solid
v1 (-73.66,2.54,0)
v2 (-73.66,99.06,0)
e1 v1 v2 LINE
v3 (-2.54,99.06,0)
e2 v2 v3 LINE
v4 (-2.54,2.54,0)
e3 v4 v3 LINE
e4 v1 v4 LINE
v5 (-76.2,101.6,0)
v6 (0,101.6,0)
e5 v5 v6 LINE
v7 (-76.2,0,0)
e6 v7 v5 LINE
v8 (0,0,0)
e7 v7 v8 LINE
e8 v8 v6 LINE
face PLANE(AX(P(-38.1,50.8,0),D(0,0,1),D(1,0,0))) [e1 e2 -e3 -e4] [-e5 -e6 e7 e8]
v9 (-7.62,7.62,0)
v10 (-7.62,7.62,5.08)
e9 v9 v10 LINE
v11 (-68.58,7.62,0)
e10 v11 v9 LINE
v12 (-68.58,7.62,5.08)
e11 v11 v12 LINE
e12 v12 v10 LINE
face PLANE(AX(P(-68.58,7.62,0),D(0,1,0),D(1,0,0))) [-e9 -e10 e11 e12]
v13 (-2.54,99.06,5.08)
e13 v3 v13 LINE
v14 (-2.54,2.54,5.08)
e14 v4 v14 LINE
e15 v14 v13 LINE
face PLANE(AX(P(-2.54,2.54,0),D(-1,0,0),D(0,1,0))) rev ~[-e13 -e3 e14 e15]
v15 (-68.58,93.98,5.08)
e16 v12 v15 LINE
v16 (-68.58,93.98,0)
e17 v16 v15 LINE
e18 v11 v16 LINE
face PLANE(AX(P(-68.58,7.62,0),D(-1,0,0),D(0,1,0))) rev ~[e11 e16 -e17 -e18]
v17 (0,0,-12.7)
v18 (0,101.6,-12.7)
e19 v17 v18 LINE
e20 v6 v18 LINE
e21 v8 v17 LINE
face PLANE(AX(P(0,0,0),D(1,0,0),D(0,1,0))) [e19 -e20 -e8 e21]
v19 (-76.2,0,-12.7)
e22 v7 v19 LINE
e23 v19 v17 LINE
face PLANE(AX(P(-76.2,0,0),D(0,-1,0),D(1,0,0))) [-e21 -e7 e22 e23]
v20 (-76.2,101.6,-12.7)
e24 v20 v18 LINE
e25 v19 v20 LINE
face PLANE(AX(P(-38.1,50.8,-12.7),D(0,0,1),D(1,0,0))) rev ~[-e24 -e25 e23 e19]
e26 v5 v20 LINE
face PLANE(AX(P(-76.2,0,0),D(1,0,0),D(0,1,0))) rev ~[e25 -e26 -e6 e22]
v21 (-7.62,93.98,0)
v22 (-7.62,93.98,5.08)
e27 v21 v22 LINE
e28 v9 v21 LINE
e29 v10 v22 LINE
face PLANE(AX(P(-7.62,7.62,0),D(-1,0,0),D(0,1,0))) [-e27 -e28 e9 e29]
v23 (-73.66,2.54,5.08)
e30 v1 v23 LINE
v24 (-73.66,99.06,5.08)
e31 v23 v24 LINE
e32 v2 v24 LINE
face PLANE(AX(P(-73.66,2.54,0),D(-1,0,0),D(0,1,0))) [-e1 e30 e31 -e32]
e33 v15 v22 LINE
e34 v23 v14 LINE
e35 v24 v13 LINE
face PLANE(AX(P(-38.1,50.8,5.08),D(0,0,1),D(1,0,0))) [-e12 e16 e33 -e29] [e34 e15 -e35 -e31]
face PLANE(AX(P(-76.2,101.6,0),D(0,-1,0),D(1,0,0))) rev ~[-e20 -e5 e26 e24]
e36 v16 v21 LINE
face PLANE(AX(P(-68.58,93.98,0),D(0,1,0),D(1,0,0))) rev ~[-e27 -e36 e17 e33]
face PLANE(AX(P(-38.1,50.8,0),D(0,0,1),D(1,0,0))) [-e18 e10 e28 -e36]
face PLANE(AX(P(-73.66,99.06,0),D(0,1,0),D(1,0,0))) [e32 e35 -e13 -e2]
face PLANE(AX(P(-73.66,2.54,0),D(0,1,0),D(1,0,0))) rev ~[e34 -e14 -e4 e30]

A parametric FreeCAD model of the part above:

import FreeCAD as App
import Part
import Sketcher

V = App.Vector
Q = App.Units.Quantity


def add_polygon(sketch, points):
    """Adds a closed chain of lines whose ends are joined by coincident constraints."""
    first, n = sketch.GeometryCount, len(points)
    for a, b in zip(points, points[1:] + points[:1]):
        sketch.addGeometry(Part.LineSegment(App.Vector(*a, 0), App.Vector(*b, 0)), False)
    for i in range(n):
        sketch.addConstraint(Sketcher.Constraint("Coincident", first + i, 2, first + (i + 1) % n, 1))

doc = App.newDocument("Part")
params = doc.addObject("Spreadsheet::Sheet", "Params")
for row, (alias, value) in enumerate([
    ("sketch1_width", "3 in"),
    ("sketch1_height", "4 in"),
    ("pad1_length", "0.5 in"),
    ("sketch2_width", "2.8 in"),
    ("sketch2_width2", "2.4 in"),
    ("sketch2_height", "3.8 in"),
    ("sketch2_height2", "3.4 in"),
    ("pad2_length", "0.2 in"),
], start=1):
    params.set(f"A{row}", alias)
    params.set(f"B{row}", "=" + value)
    params.setAlias(f"B{row}", alias)

body = doc.addObject("PartDesign::Body", "Body")

# Sketch on XY plane
sketch1 = body.newObject("Sketcher::SketchObject", "Sketch")
sketch1.AttachmentSupport = (doc.getObject("XY_Plane"), [""])
sketch1.MapMode = "FlatFace"
add_polygon(sketch1, [(-76.2, 101.6), (-76.2, 0), (0, 0), (0, 101.6)])  # lines 0-3
sketch1.addConstraint(Sketcher.Constraint("Vertical", 0))
sketch1.addConstraint(Sketcher.Constraint("Horizontal", 1))
sketch1.addConstraint(Sketcher.Constraint("Vertical", 2))
sketch1.addConstraint(Sketcher.Constraint("Horizontal", 3))
sketch1.addConstraint(Sketcher.Constraint("Coincident", 1, 2, -1, 1))
sketch1.addConstraint(Sketcher.Constraint("DistanceX", 1, 1, 1, 2, Q("3 in")))
sketch1.addConstraint(Sketcher.Constraint("DistanceY", 0, 2, 0, 1, Q("4 in")))
sketch1.setExpression("Constraints[9]", "Params.sketch1_width")
sketch1.setExpression("Constraints[10]", "Params.sketch1_height")
pad1 = body.newObject("PartDesign::Pad", "Pad")
pad1.Profile = sketch1
pad1.setExpression("Length", "Params.pad1_length")
pad1.Reversed = True

# Sketch on XY plane
sketch2 = body.newObject("Sketcher::SketchObject", "Sketch001")
sketch2.AttachmentSupport = (doc.getObject("XY_Plane"), [""])
sketch2.MapMode = "FlatFace"
add_polygon(sketch2, [(-73.66, 99.06), (-73.66, 2.54), (-2.54, 2.54), (-2.54, 99.06)])  # lines 0-3
add_polygon(sketch2, [(-7.62, 7.62), (-68.58, 7.62), (-68.58, 93.98), (-7.62, 93.98)])  # lines 4-7
sketch2.addConstraint(Sketcher.Constraint("Vertical", 0))
sketch2.addConstraint(Sketcher.Constraint("Horizontal", 1))
sketch2.addConstraint(Sketcher.Constraint("Vertical", 2))
sketch2.addConstraint(Sketcher.Constraint("Horizontal", 3))
sketch2.addConstraint(Sketcher.Constraint("Horizontal", 4))
sketch2.addConstraint(Sketcher.Constraint("Vertical", 5))
sketch2.addConstraint(Sketcher.Constraint("Horizontal", 6))
sketch2.addConstraint(Sketcher.Constraint("Vertical", 7))
sketch2.addConstraint(Sketcher.Constraint("DistanceX", 1, 1, 1, 2, Q("2.8 in")))
sketch2.addConstraint(Sketcher.Constraint("DistanceX", 4, 2, 4, 1, Q("2.4 in")))
sketch2.addConstraint(Sketcher.Constraint("DistanceY", 0, 2, 0, 1, Q("3.8 in")))
sketch2.addConstraint(Sketcher.Constraint("DistanceY", 5, 1, 5, 2, Q("3.4 in")))
sketch2.addConstraint(Sketcher.Constraint("DistanceX", 0, 2, -1, 1, Q("2.9 in")))
sketch2.addConstraint(Sketcher.Constraint("DistanceY", -1, 1, 0, 2, Q("0.1 in")))
sketch2.addConstraint(Sketcher.Constraint("DistanceX", 4, 2, -1, 1, Q("2.7 in")))
sketch2.addConstraint(Sketcher.Constraint("DistanceY", -1, 1, 4, 2, Q("0.3 in")))
sketch2.setExpression("Constraints[16]", "Params.sketch2_width")
sketch2.setExpression("Constraints[17]", "Params.sketch2_width2")
sketch2.setExpression("Constraints[18]", "Params.sketch2_height")
sketch2.setExpression("Constraints[19]", "Params.sketch2_height2")
pad2 = body.newObject("PartDesign::Pad", "Pad001")
pad2.Profile = sketch2
pad2.setExpression("Length", "Params.pad2_length")

doc.recompute()
